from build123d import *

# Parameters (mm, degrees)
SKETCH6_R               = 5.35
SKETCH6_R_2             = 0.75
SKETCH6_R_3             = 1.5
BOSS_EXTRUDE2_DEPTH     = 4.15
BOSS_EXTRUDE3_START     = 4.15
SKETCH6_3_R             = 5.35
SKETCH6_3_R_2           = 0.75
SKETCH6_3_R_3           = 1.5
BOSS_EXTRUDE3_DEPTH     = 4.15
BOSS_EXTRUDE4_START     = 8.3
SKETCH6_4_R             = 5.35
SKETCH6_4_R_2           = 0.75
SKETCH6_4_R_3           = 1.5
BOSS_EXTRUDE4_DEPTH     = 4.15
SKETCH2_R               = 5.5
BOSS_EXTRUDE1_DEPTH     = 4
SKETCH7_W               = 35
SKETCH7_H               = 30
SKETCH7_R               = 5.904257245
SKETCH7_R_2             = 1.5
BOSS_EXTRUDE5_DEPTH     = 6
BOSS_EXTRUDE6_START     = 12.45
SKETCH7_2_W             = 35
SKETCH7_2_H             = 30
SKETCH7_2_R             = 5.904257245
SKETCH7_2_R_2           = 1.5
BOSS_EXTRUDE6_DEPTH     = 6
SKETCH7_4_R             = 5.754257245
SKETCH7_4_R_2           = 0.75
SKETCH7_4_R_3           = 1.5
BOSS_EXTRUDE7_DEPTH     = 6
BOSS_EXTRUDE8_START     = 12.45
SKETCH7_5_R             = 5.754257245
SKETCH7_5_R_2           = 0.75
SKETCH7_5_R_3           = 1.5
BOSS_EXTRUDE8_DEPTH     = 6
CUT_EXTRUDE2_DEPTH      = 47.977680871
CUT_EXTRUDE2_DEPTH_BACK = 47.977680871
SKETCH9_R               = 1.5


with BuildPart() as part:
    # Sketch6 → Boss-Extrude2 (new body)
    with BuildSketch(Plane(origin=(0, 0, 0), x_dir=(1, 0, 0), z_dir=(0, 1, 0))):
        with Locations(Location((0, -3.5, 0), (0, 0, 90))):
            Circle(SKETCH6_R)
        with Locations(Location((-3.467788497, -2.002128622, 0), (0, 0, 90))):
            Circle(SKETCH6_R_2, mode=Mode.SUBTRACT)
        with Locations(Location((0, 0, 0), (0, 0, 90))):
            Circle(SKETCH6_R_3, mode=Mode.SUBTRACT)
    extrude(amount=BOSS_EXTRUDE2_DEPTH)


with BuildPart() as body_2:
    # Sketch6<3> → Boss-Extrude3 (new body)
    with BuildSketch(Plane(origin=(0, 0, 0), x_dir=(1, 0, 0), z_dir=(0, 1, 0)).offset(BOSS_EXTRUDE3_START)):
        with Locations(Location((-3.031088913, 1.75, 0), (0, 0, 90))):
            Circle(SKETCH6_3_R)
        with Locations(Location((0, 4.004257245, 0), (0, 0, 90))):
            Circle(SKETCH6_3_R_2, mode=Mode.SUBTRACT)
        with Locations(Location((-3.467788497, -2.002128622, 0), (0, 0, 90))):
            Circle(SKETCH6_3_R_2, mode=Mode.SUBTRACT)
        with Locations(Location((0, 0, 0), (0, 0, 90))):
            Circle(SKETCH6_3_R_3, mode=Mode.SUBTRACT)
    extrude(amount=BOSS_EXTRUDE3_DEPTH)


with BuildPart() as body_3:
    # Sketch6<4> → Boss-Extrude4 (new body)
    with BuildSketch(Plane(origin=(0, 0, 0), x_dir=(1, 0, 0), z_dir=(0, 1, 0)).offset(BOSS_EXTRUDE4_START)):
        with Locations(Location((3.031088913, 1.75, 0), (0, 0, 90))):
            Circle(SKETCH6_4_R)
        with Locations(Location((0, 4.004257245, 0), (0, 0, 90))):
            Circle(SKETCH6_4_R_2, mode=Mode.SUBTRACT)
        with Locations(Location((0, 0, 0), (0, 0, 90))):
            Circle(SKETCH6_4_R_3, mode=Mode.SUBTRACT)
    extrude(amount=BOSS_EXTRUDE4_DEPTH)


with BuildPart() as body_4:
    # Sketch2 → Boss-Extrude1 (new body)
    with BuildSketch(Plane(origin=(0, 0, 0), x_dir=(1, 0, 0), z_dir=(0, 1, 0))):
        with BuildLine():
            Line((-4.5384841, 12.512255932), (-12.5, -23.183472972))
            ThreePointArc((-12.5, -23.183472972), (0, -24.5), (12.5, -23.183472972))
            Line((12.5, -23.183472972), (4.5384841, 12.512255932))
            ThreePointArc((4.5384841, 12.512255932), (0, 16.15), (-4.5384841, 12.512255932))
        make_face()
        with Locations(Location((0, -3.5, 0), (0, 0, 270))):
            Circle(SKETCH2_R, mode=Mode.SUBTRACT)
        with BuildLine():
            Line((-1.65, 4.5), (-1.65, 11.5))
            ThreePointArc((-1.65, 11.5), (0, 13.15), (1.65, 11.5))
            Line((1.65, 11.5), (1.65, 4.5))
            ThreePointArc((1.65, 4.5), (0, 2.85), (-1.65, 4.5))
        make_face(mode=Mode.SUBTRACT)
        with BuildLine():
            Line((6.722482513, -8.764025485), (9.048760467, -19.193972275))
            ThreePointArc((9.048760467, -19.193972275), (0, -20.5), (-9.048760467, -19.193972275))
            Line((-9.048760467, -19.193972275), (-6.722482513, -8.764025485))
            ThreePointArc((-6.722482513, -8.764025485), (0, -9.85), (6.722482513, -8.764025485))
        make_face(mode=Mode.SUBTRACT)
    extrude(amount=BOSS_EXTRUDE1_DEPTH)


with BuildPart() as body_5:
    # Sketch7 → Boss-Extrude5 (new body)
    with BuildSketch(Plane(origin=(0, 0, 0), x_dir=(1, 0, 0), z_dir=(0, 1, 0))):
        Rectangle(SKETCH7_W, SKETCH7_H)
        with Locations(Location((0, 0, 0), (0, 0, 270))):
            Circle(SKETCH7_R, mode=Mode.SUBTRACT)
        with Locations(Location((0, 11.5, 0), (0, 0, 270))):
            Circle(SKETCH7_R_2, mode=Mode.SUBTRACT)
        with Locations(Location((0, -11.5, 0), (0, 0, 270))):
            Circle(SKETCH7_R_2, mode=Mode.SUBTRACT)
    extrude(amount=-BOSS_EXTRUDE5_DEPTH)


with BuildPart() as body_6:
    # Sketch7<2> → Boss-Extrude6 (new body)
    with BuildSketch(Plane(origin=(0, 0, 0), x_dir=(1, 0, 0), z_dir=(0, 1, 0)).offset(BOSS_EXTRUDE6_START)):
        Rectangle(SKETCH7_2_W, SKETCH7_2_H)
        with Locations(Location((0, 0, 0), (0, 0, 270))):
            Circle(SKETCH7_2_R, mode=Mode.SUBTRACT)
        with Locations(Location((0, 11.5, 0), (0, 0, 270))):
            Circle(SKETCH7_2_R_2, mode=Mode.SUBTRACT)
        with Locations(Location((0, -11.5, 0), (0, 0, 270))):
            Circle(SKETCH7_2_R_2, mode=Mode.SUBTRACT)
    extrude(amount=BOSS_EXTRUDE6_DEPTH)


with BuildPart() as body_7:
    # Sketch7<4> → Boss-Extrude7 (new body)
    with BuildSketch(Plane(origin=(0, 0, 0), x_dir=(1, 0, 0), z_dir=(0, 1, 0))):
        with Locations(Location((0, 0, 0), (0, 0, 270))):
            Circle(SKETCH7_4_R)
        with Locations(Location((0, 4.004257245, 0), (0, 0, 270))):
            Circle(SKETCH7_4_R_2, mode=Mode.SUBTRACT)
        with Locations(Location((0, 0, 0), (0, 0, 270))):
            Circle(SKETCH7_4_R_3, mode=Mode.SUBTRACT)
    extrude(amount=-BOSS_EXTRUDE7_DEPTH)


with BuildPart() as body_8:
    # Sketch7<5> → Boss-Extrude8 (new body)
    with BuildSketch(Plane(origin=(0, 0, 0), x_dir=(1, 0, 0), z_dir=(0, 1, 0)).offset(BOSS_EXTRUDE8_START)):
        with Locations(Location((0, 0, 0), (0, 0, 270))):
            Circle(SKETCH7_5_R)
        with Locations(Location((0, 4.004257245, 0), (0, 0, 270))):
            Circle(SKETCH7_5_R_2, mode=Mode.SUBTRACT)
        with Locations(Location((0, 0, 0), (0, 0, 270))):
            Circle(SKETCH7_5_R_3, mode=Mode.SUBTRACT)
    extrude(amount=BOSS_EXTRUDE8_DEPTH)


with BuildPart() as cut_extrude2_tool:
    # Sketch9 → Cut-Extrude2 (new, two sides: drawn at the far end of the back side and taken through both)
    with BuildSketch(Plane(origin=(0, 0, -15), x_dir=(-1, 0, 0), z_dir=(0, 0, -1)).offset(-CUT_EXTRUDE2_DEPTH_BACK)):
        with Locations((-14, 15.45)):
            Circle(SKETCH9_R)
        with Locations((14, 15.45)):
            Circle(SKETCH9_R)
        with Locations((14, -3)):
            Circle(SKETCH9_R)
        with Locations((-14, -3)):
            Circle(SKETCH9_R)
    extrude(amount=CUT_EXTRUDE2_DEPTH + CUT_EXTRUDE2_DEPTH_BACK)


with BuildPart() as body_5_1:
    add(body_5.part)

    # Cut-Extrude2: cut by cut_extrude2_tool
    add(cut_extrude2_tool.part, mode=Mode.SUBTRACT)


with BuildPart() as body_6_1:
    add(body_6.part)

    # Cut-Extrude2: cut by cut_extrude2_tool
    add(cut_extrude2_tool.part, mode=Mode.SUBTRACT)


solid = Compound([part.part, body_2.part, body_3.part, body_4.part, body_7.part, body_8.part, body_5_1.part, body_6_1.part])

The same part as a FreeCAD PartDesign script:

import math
import FreeCAD as App
import Part
import Sketcher
from FreeCAD import Vector
Q = App.Units.Quantity

doc = App.newDocument("Part")
params = doc.addObject("Spreadsheet::Sheet", "Params")
for row, (alias, value) in enumerate([
    ("sketch1_diameter", "3 mm"),
    ("sketch1_diameter2", "10.7 mm"),
    ("sketch1_diameter3", "1.5 mm"),
    ("pad1_length", "4.15 mm"),
    ("sketch2_diameter", "3 mm"),
    ("sketch2_diameter2", "10.7 mm"),
    ("sketch2_diameter3", "1.5 mm"),
    ("pad2_length", "4.15 mm"),
    ("sketch3_diameter", "3 mm"),
    ("sketch3_diameter2", "10.7 mm"),
    ("sketch3_diameter3", "1.5 mm"),
    ("pad3_length", "4.15 mm"),
    ("sketch4_diameter", "11 mm"),
    ("sketch4_radius", "60 mm"),
    ("sketch4_radius2", "32 mm"),
    ("sketch4_height", "7 mm"),
    ("sketch4_radius3", "4.65 mm"),
    ("pad4_length", "4 mm"),
    ("sketch5_diameter", "3 mm"),
    ("sketch5_width", "35 mm"),
    ("sketch5_height", "30 mm"),
    ("pad5_length", "6 mm"),
    ("sketch6_diameter", "3 mm"),
    ("sketch6_width", "35 mm"),
    ("sketch6_height", "30 mm"),
    ("pad6_length", "6 mm"),
    ("sketch7_diameter", "3 mm"),
    ("sketch7_diameter2", "1.5 mm"),
    ("pad7_length", "6 mm"),
    ("sketch8_diameter", "3 mm"),
    ("sketch8_diameter2", "1.5 mm"),
    ("pad8_length", "6 mm"),
    ("sketch9_diameter", "3 mm"),
    ("pad9_length", "47.977681 mm"),
    ("pad9_length2", "47.977681 mm"),
], start=1):
    params.set(f"A{row}", alias)
    params.set(f"B{row}", "=" + value)
    params.setAlias(f"B{row}", alias)

body = doc.addObject("PartDesign::Body", "Body")

sketch1 = body.newObject("Sketcher::SketchObject", "Sketch")
sketch1.AttachmentSupport = (doc.getObject("XZ_Plane"), [""])
sketch1.MapMode = "FlatFace"
sketch1.addGeometry(Part.Circle(Vector(0, 3.5, 0), Vector(0, 0, 1), 5.3), False)
sketch1.addGeometry(Part.Circle(Vector(0, 0, 0), Vector(0, 0, 1), 1.5), False)
sketch1.addGeometry(Part.Circle(Vector(-3.5, 2, 0), Vector(0, 0, 1), 0.8), False)
sketch1.addConstraint(Sketcher.Constraint("Coincident", 1, 3, -1, 1))
sketch1.addConstraint(Sketcher.Constraint("PointOnObject", 0, 3, -2))
sketch1.addConstraint(Sketcher.Constraint("Diameter", 1, Q("3 mm")))
sketch1.addConstraint(Sketcher.Constraint("Diameter", 0, Q("10.7 mm")))
sketch1.addConstraint(Sketcher.Constraint("Diameter", 2, Q("1.5 mm")))
sketch1.addConstraint(Sketcher.Constraint("DistanceY", -1, 1, 0, 3, Q("3.5 mm")))
sketch1.addConstraint(Sketcher.Constraint("DistanceX", 2, 3, -1, 1, Q("3.467788 mm")))
sketch1.addConstraint(Sketcher.Constraint("DistanceY", -1, 1, 2, 3, Q("2.002129 mm")))
sketch1.setExpression("Constraints[2]", "Params.sketch1_diameter")
sketch1.setExpression("Constraints[3]", "Params.sketch1_diameter2")
sketch1.setExpression("Constraints[4]", "Params.sketch1_diameter3")
pad1 = body.newObject("PartDesign::Pad", "Pad")
pad1.Profile = sketch1
pad1.setExpression("Length", "Params.pad1_length")
pad1.Reversed = True
body2 = doc.addObject("PartDesign::Body", "Body001")

sketch2 = body2.newObject("Sketcher::SketchObject", "Sketch001")
sketch2.AttachmentSupport = (doc.getObject("XZ_Plane001"), [""])
sketch2.MapMode = "FlatFace"
sketch2.AttachmentOffset = App.Placement(Vector(0, 0, -4.15), App.Rotation())
sketch2.addGeometry(Part.Circle(Vector(-3, -1.8, 0), Vector(0, 0, 1), 5.3), False)
sketch2.addGeometry(Part.Circle(Vector(0, 0, 0), Vector(0, 0, 1), 1.5), False)
sketch2.addGeometry(Part.Circle(Vector(0, -4, 0), Vector(0, 0, 1), 0.8), False)
sketch2.addGeometry(Part.Circle(Vector(-3.5, 2, 0), Vector(0, 0, 1), 0.8), False)
sketch2.addConstraint(Sketcher.Constraint("Coincident", 1, 3, -1, 1))
sketch2.addConstraint(Sketcher.Constraint("Equal", 2, 3))
sketch2.addConstraint(Sketcher.Constraint("PointOnObject", 2, 3, -2))
sketch2.addConstraint(Sketcher.Constraint("Diameter", 1, Q("3 mm")))
sketch2.addConstraint(Sketcher.Constraint("Diameter", 0, Q("10.7 mm")))
sketch2.addConstraint(Sketcher.Constraint("Diameter", 2, Q("1.5 mm")))
sketch2.addConstraint(Sketcher.Constraint("DistanceY", 0, 3, -1, 1, Q("1.75 mm")))
sketch2.addConstraint(Sketcher.Constraint("DistanceX", 3, 3, 0, 3, Q("0.4367 mm")))
sketch2.addConstraint(Sketcher.Constraint("DistanceX", 0, 3, -1, 1, Q("3.031089 mm")))
sketch2.addConstraint(Sketcher.Constraint("DistanceY", -1, 1, 3, 3, Q("2.002129 mm")))
sketch2.addConstraint(Sketcher.Constraint("DistanceY", 2, 3, -1, 1, Q("4.004257 mm")))
sketch2.setExpression("Constraints[3]", "Params.sketch2_diameter")
sketch2.setExpression("Constraints[4]", "Params.sketch2_diameter2")
sketch2.setExpression("Constraints[5]", "Params.sketch2_diameter3")
pad2 = body2.newObject("PartDesign::Pad", "Pad001")
pad2.Profile = sketch2
pad2.setExpression("Length", "Params.pad2_length")
pad2.Reversed = True
body3 = doc.addObject("PartDesign::Body", "Body002")

sketch3 = body3.newObject("Sketcher::SketchObject", "Sketch002")
sketch3.AttachmentSupport = (doc.getObject("XZ_Plane002"), [""])
sketch3.MapMode = "FlatFace"
sketch3.AttachmentOffset = App.Placement(Vector(0, 0, -8.3), App.Rotation())
sketch3.addGeometry(Part.Circle(Vector(3, -1.8, 0), Vector(0, 0, 1), 5.3), False)
sketch3.addGeometry(Part.Circle(Vector(0, 0, 0), Vector(0, 0, 1), 1.5), False)
sketch3.addGeometry(Part.Circle(Vector(0, -4, 0), Vector(0, 0, 1), 0.8), False)
sketch3.addConstraint(Sketcher.Constraint("Coincident", 1, 3, -1, 1))
sketch3.addConstraint(Sketcher.Constraint("PointOnObject", 2, 3, -2))
sketch3.addConstraint(Sketcher.Constraint("Diameter", 1, Q("3 mm")))
sketch3.addConstraint(Sketcher.Constraint("Diameter", 0, Q("10.7 mm")))
sketch3.addConstraint(Sketcher.Constraint("Diameter", 2, Q("1.5 mm")))
sketch3.addConstraint(Sketcher.Constraint("DistanceY", 0, 3, -1, 1, Q("1.75 mm")))
sketch3.addConstraint(Sketcher.Constraint("DistanceX", -1, 1, 0, 3, Q("3.031089 mm")))
sketch3.addConstraint(Sketcher.Constraint("DistanceY", 2, 3, -1, 1, Q("4.004257 mm")))
sketch3.setExpression("Constraints[2]", "Params.sketch3_diameter")
sketch3.setExpression("Constraints[3]", "Params.sketch3_diameter2")
sketch3.setExpression("Constraints[4]", "Params.sketch3_diameter3")
pad3 = body3.newObject("PartDesign::Pad", "Pad002")
pad3.Profile = sketch3
pad3.setExpression("Length", "Params.pad3_length")
pad3.Reversed = True
body4 = doc.addObject("PartDesign::Body", "Body003")

sketch4 = body4.newObject("Sketcher::SketchObject", "Sketch003")
sketch4.AttachmentSupport = (doc.getObject("XZ_Plane003"), [""])
sketch4.MapMode = "FlatFace"
sketch4.addGeometry(Part.LineSegment(Vector(-4.5, -12.5, 0), Vector(-12.5, 23.2, 0)), False)
sketch4.addGeometry(Part.ArcOfCircle(Part.Circle(Vector(0, -35.5, 0), Vector(0, 0, 1), 60), math.radians(78), math.radians(102)), False)
sketch4.addGeometry(Part.LineSegment(Vector(12.5, 23.2, 0), Vector(4.5, -12.5, 0)), False)
sketch4.addGeometry(Part.ArcOfCircle(Part.Circle(Vector(0, -11.5, 0), Vector(0, 0, 1), 4.7), math.radians(-167), math.radians(-13)), False)
sketch4.addGeometry(Part.ArcOfCircle(Part.Circle(Vector(0, -11.5, 0), Vector(0, 0, 1), 21.3), math.radians(72), math.radians(108)), False)
sketch4.addGeometry(Part.LineSegment(Vector(6.7, 8.8, 0), Vector(9, 19.2, 0)), False)
sketch4.addGeometry(Part.ArcOfCircle(Part.Circle(Vector(0, -11.5, 0), Vector(0, 0, 1), 32), math.radians(74), math.radians(106)), False)
sketch4.addGeometry(Part.LineSegment(Vector(-9, 19.2, 0), Vector(-6.7, 8.8, 0)), False)
sketch4.addGeometry(Part.Circle(Vector(0, 3.5, 0), Vector(0, 0, 1), 5.5), False)
sketch4.addGeometry(Part.ArcOfCircle(Part.Circle(Vector(0, -4.5, 0), Vector(0, 0, 1), 1.6), math.radians(0), math.radians(180)), False)
sketch4.addGeometry(Part.LineSegment(Vector(-1.6, -4.5, 0), Vector(-1.6, -11.5, 0)), False)
sketch4.addGeometry(Part.ArcOfCircle(Part.Circle(Vector(0, -11.5, 0), Vector(0, 0, 1), 1.6), math.radians(180), math.radians(360)), False)
sketch4.addGeometry(Part.LineSegment(Vector(1.6, -11.5, 0), Vector(1.6, -4.5, 0)), False)
sketch4.addConstraint(Sketcher.Constraint("Coincident", 0, 2, 1, 2))
sketch4.addConstraint(Sketcher.Constraint("Coincident", 1, 1, 2, 1))
sketch4.addConstraint(Sketcher.Constraint("Tangent", 2, 2, 3, 2))
sketch4.addConstraint(Sketcher.Constraint("Tangent", 3, 1, 0, 1))
sketch4.addConstraint(Sketcher.Constraint("Coincident", 4, 1, 5, 1))
sketch4.addConstraint(Sketcher.Constraint("Coincident", 5, 2, 6, 1))
sketch4.addConstraint(Sketcher.Constraint("Coincident", 6, 2, 7, 1))
sketch4.addConstraint(Sketcher.Constraint("Coincident", 7, 2, 4, 2))
sketch4.addConstraint(Sketcher.Constraint("Tangent", 9, 2, 10, 1))
sketch4.addConstraint(Sketcher.Constraint("Tangent", 10, 2, 11, 1))
sketch4.addConstraint(Sketcher.Constraint("Tangent", 11, 2, 12, 1))
sketch4.addConstraint(Sketcher.Constraint("Tangent", 12, 2, 9, 1))
sketch4.addConstraint(Sketcher.Constraint("Vertical", 10))
sketch4.addConstraint(Sketcher.Constraint("Vertical", 12))
sketch4.addConstraint(Sketcher.Constraint("Coincident", 4, 3, 3, 3))
sketch4.addConstraint(Sketcher.Constraint("Coincident", 6, 3, 3, 3))
sketch4.addConstraint(Sketcher.Constraint("Coincident", 11, 3, 3, 3))
sketch4.addConstraint(Sketcher.Constraint("Symmetric", 0, 2, 1, 1, -2))
sketch4.addConstraint(Sketcher.Constraint("Symmetric", 5, 2, 6, 2, -2))
sketch4.addConstraint(Sketcher.Constraint("PointOnObject", 8, 3, -2))
sketch4.addConstraint(Sketcher.Constraint("Parallel", 2, 5))
sketch4.addConstraint(Sketcher.Constraint("Parallel", 0, 7))
sketch4.addConstraint(Sketcher.Constraint("Diameter", 8, Q("11 mm")))
sketch4.addConstraint(Sketcher.Constraint("Radius", 1, Q("60 mm")))
sketch4.addConstraint(Sketcher.Constraint("Radius", 6, Q("32 mm")))
sketch4.addConstraint(Sketcher.Constraint("DistanceY", 10, 2, 10, 1, Q("7 mm")))
sketch4.addConstraint(Sketcher.Constraint("Radius", 3, Q("4.65 mm")))
sketch4.addConstraint(Sketcher.Constraint("Radius", 4, Q("21.35 mm")))
sketch4.addConstraint(Sketcher.Constraint("Radius", 9, Q("1.65 mm")))
sketch4.addConstraint(Sketcher.Constraint("DistanceY", 1, 3, 3, 3, Q("24 mm")))
sketch4.addConstraint(Sketcher.Constraint("DistanceY", 4, 3, 8, 3, Q("15 mm")))
sketch4.addConstraint(Sketcher.Constraint("DistanceX", 0, 2, 1, 1, Q("25 mm")))
sketch4.addConstraint(Sketcher.Constraint("DistanceY", 1, 3, -1, 1, Q("35.5 mm")))
sketch4.addConstraint(Sketcher.Constraint("DistanceY", 5, 2, 1, 1, Q("3.989501 mm")))
sketch4.setExpression("Constraints[22]", "Params.sketch4_diameter")
sketch4.setExpression("Constraints[23]", "Params.sketch4_radius")
sketch4.setExpression("Constraints[24]", "Params.sketch4_radius2")
sketch4.setExpression("Constraints[25]", "Params.sketch4_height")
sketch4.setExpression("Constraints[26]", "Params.sketch4_radius3")
pad4 = body4.newObject("PartDesign::Pad", "Pad003")
pad4.Profile = sketch4
pad4.setExpression("Length", "Params.pad4_length")
pad4.Reversed = True
body5 = doc.addObject("PartDesign::Body", "Body004")

sketch5 = body5.newObject("Sketcher::SketchObject", "Sketch004")
sketch5.AttachmentSupport = (doc.getObject("XZ_Plane004"), [""])
sketch5.MapMode = "FlatFace"
sketch5.addGeometry(Part.LineSegment(Vector(-17.5, -15, 0), Vector(-17.5, 15, 0)), False)
sketch5.addGeometry(Part.LineSegment(Vector(-17.5, 15, 0), Vector(17.5, 15, 0)), False)
sketch5.addGeometry(Part.LineSegment(Vector(17.5, 15, 0), Vector(17.5, -15, 0)), False)
sketch5.addGeometry(Part.LineSegment(Vector(17.5, -15, 0), Vector(-17.5, -15, 0)), False)
sketch5.addGeometry(Part.Circle(Vector(0, 11.5, 0), Vector(0, 0, 1), 1.5), False)
sketch5.addGeometry(Part.Circle(Vector(0, 0, 0), Vector(0, 0, 1), 5.9), False)
sketch5.addGeometry(Part.Circle(Vector(0, -11.5, 0), Vector(0, 0, 1), 1.5), False)
sketch5.addConstraint(Sketcher.Constraint("Coincident", 0, 2, 1, 1))
sketch5.addConstraint(Sketcher.Constraint("Coincident", 1, 2, 2, 1))
sketch5.addConstraint(Sketcher.Constraint("Coincident", 2, 2, 3, 1))
sketch5.addConstraint(Sketcher.Constraint("Coincident", 3, 2, 0, 1))
sketch5.addConstraint(Sketcher.Constraint("Vertical", 0))
sketch5.addConstraint(Sketcher.Constraint("Horizontal", 1))
sketch5.addConstraint(Sketcher.Constraint("Vertical", 2))
sketch5.addConstraint(Sketcher.Constraint("Horizontal", 3))
sketch5.addConstraint(Sketcher.Constraint("Coincident", 5, 3, -1, 1))
sketch5.addConstraint(Sketcher.Constraint("Equal", 4, 6))
sketch5.addConstraint(Sketcher.Constraint("Symmetric", 4, 3, 6, 3, -1, 1))
sketch5.addConstraint(Sketcher.Constraint("Symmetric", 0, 2, 2, 2, -1, 1))
sketch5.addConstraint(Sketcher.Constraint("PointOnObject", 4, 3, -2))
sketch5.addConstraint(Sketcher.Constraint("Diameter", 4, Q("3 mm")))
sketch5.addConstraint(Sketcher.Constraint("DistanceX", 1, 1, 1, 2, Q("35 mm")))
sketch5.addConstraint(Sketcher.Constraint("DistanceY", 0, 1, 0, 2, Q("30 mm")))
sketch5.addConstraint(Sketcher.Constraint("DistanceY", 6, 3, 4, 3, Q("23 mm")))
sketch5.addConstraint(Sketcher.Constraint("Diameter", 5, Q("11.808514 mm")))
sketch5.setExpression("Constraints[13]", "Params.sketch5_diameter")
sketch5.setExpression("Constraints[14]", "Params.sketch5_width")
sketch5.setExpression("Constraints[15]", "Params.sketch5_height")
pad5 = body5.newObject("PartDesign::Pad", "Pad004")
pad5.Profile = sketch5
pad5.setExpression("Length", "Params.pad5_length")
body6 = doc.addObject("PartDesign::Body", "Body005")

sketch6 = body6.newObject("Sketcher::SketchObject", "Sketch005")
sketch6.AttachmentSupport = (doc.getObject("XZ_Plane005"), [""])
sketch6.MapMode = "FlatFace"
sketch6.AttachmentOffset = App.Placement(Vector(0, 0, -12.45), App.Rotation())
sketch6.addGeometry(Part.LineSegment(Vector(-17.5, -15, 0), Vector(-17.5, 15, 0)), False)
sketch6.addGeometry(Part.LineSegment(Vector(-17.5, 15, 0), Vector(17.5, 15, 0)), False)
sketch6.addGeometry(Part.LineSegment(Vector(17.5, 15, 0), Vector(17.5, -15, 0)), False)
sketch6.addGeometry(Part.LineSegment(Vector(17.5, -15, 0), Vector(-17.5, -15, 0)), False)
sketch6.addGeometry(Part.Circle(Vector(0, 11.5, 0), Vector(0, 0, 1), 1.5), False)
sketch6.addGeometry(Part.Circle(Vector(0, 0, 0), Vector(0, 0, 1), 5.9), False)
sketch6.addGeometry(Part.Circle(Vector(0, -11.5, 0), Vector(0, 0, 1), 1.5), False)
sketch6.addConstraint(Sketcher.Constraint("Coincident", 0, 2, 1, 1))
sketch6.addConstraint(Sketcher.Constraint("Coincident", 1, 2, 2, 1))
sketch6.addConstraint(Sketcher.Constraint("Coincident", 2, 2, 3, 1))
sketch6.addConstraint(Sketcher.Constraint("Coincident", 3, 2, 0, 1))
sketch6.addConstraint(Sketcher.Constraint("Vertical", 0))
sketch6.addConstraint(Sketcher.Constraint("Horizontal", 1))
sketch6.addConstraint(Sketcher.Constraint("Vertical", 2))
sketch6.addConstraint(Sketcher.Constraint("Horizontal", 3))
sketch6.addConstraint(Sketcher.Constraint("Coincident", 5, 3, -1, 1))
sketch6.addConstraint(Sketcher.Constraint("Equal", 4, 6))
sketch6.addConstraint(Sketcher.Constraint("Symmetric", 4, 3, 6, 3, -1, 1))
sketch6.addConstraint(Sketcher.Constraint("Symmetric", 0, 2, 2, 2, -1, 1))
sketch6.addConstraint(Sketcher.Constraint("PointOnObject", 4, 3, -2))
sketch6.addConstraint(Sketcher.Constraint("Diameter", 4, Q("3 mm")))
sketch6.addConstraint(Sketcher.Constraint("DistanceX", 1, 1, 1, 2, Q("35 mm")))
sketch6.addConstraint(Sketcher.Constraint("DistanceY", 0, 1, 0, 2, Q("30 mm")))
sketch6.addConstraint(Sketcher.Constraint("DistanceY", 6, 3, 4, 3, Q("23 mm")))
sketch6.addConstraint(Sketcher.Constraint("Diameter", 5, Q("11.808514 mm")))
sketch6.setExpression("Constraints[13]", "Params.sketch6_diameter")
sketch6.setExpression("Constraints[14]", "Params.sketch6_width")
sketch6.setExpression("Constraints[15]", "Params.sketch6_height")
pad6 = body6.newObject("PartDesign::Pad", "Pad005")
pad6.Profile = sketch6
pad6.setExpression("Length", "Params.pad6_length")
pad6.Reversed = True
body7 = doc.addObject("PartDesign::Body", "Body006")

sketch7 = body7.newObject("Sketcher::SketchObject", "Sketch006")
sketch7.AttachmentSupport = (doc.getObject("XZ_Plane006"), [""])
sketch7.MapMode = "FlatFace"
sketch7.addGeometry(Part.Circle(Vector(0, 0, 0), Vector(0, 0, 1), 5.8), False)
sketch7.addGeometry(Part.Circle(Vector(0, -4, 0), Vector(0, 0, 1), 0.8), False)
sketch7.addGeometry(Part.Circle(Vector(0, 0, 0), Vector(0, 0, 1), 1.5), False)
sketch7.addConstraint(Sketcher.Constraint("Coincident", 0, 3, -1, 1))
sketch7.addConstraint(Sketcher.Constraint("Coincident", 2, 3, -1, 1))
sketch7.addConstraint(Sketcher.Constraint("PointOnObject", 1, 3, -2))
sketch7.addConstraint(Sketcher.Constraint("Diameter", 2, Q("3 mm")))
sketch7.addConstraint(Sketcher.Constraint("Diameter", 1, Q("1.5 mm")))
sketch7.addConstraint(Sketcher.Constraint("Diameter", 0, Q("11.508514 mm")))
sketch7.addConstraint(Sketcher.Constraint("DistanceY", 1, 3, -1, 1, Q("4.004257 mm")))
sketch7.setExpression("Constraints[3]", "Params.sketch7_diameter")
sketch7.setExpression("Constraints[4]", "Params.sketch7_diameter2")
pad7 = body7.newObject("PartDesign::Pad", "Pad006")
pad7.Profile = sketch7
pad7.setExpression("Length", "Params.pad7_length")
body8 = doc.addObject("PartDesign::Body", "Body007")

sketch8 = body8.newObject("Sketcher::SketchObject", "Sketch007")
sketch8.AttachmentSupport = (doc.getObject("XZ_Plane007"), [""])
sketch8.MapMode = "FlatFace"
sketch8.AttachmentOffset = App.Placement(Vector(0, 0, -12.45), App.Rotation())
sketch8.addGeometry(Part.Circle(Vector(0, 0, 0), Vector(0, 0, 1), 5.8), False)
sketch8.addGeometry(Part.Circle(Vector(0, -4, 0), Vector(0, 0, 1), 0.8), False)
sketch8.addGeometry(Part.Circle(Vector(0, 0, 0), Vector(0, 0, 1), 1.5), False)
sketch8.addConstraint(Sketcher.Constraint("Coincident", 0, 3, -1, 1))
sketch8.addConstraint(Sketcher.Constraint("Coincident", 2, 3, -1, 1))
sketch8.addConstraint(Sketcher.Constraint("PointOnObject", 1, 3, -2))
sketch8.addConstraint(Sketcher.Constraint("Diameter", 2, Q("3 mm")))
sketch8.addConstraint(Sketcher.Constraint("Diameter", 1, Q("1.5 mm")))
sketch8.addConstraint(Sketcher.Constraint("Diameter", 0, Q("11.508514 mm")))
sketch8.addConstraint(Sketcher.Constraint("DistanceY", 1, 3, -1, 1, Q("4.004257 mm")))
sketch8.setExpression("Constraints[3]", "Params.sketch8_diameter")
sketch8.setExpression("Constraints[4]", "Params.sketch8_diameter2")
pad8 = body8.newObject("PartDesign::Pad", "Pad007")
pad8.Profile = sketch8
pad8.setExpression("Length", "Params.pad8_length")
pad8.Reversed = True
body9 = doc.addObject("PartDesign::Body", "Body008")
body9.AllowCompound = True

sketch9 = body9.newObject("Sketcher::SketchObject", "Sketch008")
sketch9.AttachmentSupport = (doc.getObject("XY_Plane008"), [""])
sketch9.MapMode = "FlatFace"
sketch9.AttachmentOffset = App.Placement(Vector(0, 0, -15), App.Rotation())
sketch9.addGeometry(Part.Circle(Vector(14, 15.4, 0), Vector(0, 0, 1), 1.5), False)
sketch9.addGeometry(Part.Circle(Vector(-14, 15.4, 0), Vector(0, 0, 1), 1.5), False)
sketch9.addGeometry(Part.Circle(Vector(-14, -3, 0), Vector(0, 0, 1), 1.5), False)
sketch9.addGeometry(Part.Circle(Vector(14, -3, 0), Vector(0, 0, 1), 1.5), False)
sketch9.addConstraint(Sketcher.Constraint("Equal", 0, 1))
sketch9.addConstraint(Sketcher.Constraint("Equal", 1, 2))
sketch9.addConstraint(Sketcher.Constraint("Equal", 2, 3))
sketch9.addConstraint(Sketcher.Constraint("Symmetric", 0, 3, 1, 3, -2))
sketch9.addConstraint(Sketcher.Constraint("Symmetric", 2, 3, 3, 3, -2))
sketch9.addConstraint(Sketcher.Constraint("Vertical", 1, 3, 2, 3))
sketch9.addConstraint(Sketcher.Constraint("Diameter", 0, Q("3 mm")))
sketch9.addConstraint(Sketcher.Constraint("DistanceX", -1, 1, 0, 3, Q("14 mm")))
sketch9.addConstraint(Sketcher.Constraint("DistanceY", 2, 3, -1, 1, Q("3 mm")))
sketch9.addConstraint(Sketcher.Constraint("DistanceY", -1, 1, 0, 3, Q("15.45 mm")))
sketch9.setExpression("Constraints[6]", "Params.sketch9_diameter")
pad9 = body9.newObject("PartDesign::Pad", "Pad008")
pad9.Profile = sketch9
pad9.Type = "TwoLengths"
pad9.setExpression("Length", "Params.pad9_length")
pad9.setExpression("Length2", "Params.pad9_length2")
pad9.Reversed = True
doc.recompute()

body10 = doc.addObject("PartDesign::Body", "Body009")
body10.BaseFeature = body9
boolean = body5.newObject("PartDesign::Boolean", "Boolean")
boolean.Type = "Cut"
boolean.addObjects([body10])
doc.recompute()

boolean2 = body6.newObject("PartDesign::Boolean", "Boolean001")
boolean2.Type = "Cut"
boolean2.addObjects([body9])

doc.recompute()
